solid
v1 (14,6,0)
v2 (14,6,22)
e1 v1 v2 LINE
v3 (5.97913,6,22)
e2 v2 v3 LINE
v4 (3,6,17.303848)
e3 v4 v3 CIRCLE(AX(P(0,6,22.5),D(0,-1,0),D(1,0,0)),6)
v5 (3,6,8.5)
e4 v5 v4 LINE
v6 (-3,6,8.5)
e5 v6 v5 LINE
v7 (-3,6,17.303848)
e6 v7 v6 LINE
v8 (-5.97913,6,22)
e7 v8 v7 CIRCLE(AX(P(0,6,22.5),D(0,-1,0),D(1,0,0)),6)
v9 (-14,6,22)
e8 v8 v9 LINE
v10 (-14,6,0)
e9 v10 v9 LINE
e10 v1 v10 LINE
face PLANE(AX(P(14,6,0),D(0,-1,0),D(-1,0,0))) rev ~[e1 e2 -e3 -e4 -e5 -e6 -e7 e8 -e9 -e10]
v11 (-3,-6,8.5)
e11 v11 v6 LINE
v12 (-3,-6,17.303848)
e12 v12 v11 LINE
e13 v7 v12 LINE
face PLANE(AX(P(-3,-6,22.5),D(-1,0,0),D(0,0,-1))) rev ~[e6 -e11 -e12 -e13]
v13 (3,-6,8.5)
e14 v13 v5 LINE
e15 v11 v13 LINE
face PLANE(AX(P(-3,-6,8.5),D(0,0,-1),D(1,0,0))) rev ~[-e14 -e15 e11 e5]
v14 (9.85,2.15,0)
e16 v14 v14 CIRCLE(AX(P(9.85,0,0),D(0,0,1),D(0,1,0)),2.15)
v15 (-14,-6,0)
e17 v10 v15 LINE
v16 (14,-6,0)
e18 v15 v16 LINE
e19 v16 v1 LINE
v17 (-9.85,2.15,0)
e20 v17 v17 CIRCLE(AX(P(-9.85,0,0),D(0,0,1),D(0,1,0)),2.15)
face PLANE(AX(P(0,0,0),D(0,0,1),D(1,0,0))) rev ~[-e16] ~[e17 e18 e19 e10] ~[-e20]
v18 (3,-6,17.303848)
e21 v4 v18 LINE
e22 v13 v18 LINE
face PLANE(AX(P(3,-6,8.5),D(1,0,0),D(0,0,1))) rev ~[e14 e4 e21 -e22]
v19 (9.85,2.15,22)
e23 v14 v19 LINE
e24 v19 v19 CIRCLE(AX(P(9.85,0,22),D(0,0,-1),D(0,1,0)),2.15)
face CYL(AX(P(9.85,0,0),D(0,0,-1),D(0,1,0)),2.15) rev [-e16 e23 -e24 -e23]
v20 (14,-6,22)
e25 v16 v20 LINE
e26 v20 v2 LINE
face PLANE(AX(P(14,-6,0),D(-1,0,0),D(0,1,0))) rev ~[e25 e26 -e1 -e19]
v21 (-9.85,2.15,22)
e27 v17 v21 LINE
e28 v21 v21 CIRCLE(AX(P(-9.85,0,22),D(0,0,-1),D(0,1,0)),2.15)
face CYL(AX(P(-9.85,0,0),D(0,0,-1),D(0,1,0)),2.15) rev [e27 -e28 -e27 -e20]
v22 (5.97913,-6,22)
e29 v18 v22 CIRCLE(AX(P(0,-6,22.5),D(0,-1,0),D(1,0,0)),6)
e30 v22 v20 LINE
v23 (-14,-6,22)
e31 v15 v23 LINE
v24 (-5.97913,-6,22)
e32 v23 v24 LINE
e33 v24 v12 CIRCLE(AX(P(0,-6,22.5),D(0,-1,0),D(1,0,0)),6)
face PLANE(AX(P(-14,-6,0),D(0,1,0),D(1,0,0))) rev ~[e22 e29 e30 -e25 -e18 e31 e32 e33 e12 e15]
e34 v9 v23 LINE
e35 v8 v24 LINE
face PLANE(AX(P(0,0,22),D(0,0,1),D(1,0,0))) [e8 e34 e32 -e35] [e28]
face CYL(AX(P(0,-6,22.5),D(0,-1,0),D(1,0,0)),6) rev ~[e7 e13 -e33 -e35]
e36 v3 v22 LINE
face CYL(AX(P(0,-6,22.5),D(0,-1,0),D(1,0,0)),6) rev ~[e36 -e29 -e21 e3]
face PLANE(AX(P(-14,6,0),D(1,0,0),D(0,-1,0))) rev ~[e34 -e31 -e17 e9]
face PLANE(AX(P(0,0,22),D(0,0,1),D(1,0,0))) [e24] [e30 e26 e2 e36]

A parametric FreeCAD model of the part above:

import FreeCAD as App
import Part
import Sketcher
from FreeCAD import Vector
Q = App.Units.Quantity

doc = App.newDocument("Part")
body = doc.addObject("PartDesign::Body", "Body")

# Sketch on XY plane
sketch1 = body.newObject("Sketcher::SketchObject", "Sketch")
sketch1.AttachmentSupport = (doc.getObject("XY_Plane"), [""])
sketch1.MapMode = "FlatFace"
sketch1.addGeometry([
    Part.LineSegment(Vector(-14, 6, 0), Vector(-14, -6, 0)),
    Part.LineSegment(Vector(-14, -6, 0), Vector(14, -6, 0)),
    Part.LineSegment(Vector(14, -6, 0), Vector(14, 6, 0)),
    Part.LineSegment(Vector(14, 6, 0), Vector(-14, 6, 0)),
], False)
sketch1.addConstraint([
    Sketcher.Constraint("Coincident", 0, 2, 1, 1),
    Sketcher.Constraint("Coincident", 1, 2, 2, 1),
    Sketcher.Constraint("Coincident", 2, 2, 3, 1),
    Sketcher.Constraint("Coincident", 3, 2, 0, 1),
    Sketcher.Constraint("Vertical", 0),
    Sketcher.Constraint("Horizontal", 1),
    Sketcher.Constraint("Vertical", 2),
    Sketcher.Constraint("Horizontal", 3),
    Sketcher.Constraint("Symmetric", 0, 2, 2, 2, -1, 1),
    Sketcher.Constraint("DistanceX", 0, 2, -1, 1, Q("14 mm")),
    Sketcher.Constraint("DistanceY", 0, 2, 0, 1, Q("12 mm")),
])
pad1 = body.newObject("PartDesign::Pad", "Pad")
pad1.Profile = sketch1
pad1.Length = 22

# Sketch on XZ plane
sketch2 = body.newObject("Sketcher::SketchObject", "Sketch001")
sketch2.AttachmentSupport = (doc.getObject("XZ_Plane"), [""])
sketch2.MapMode = "FlatFace"
sketch2.AttachmentOffset = App.Placement(Vector(0, 0, 6), App.Rotation())
sketch2.addGeometry(Part.Circle(Vector(0, 22, 0), Vector(0, 0, 1), 6), False)
sketch2.addConstraint([
    Sketcher.Constraint("PointOnObject", 0, 3, -2),
    Sketcher.Constraint("Diameter", 0, Q("12 mm")),
    Sketcher.Constraint("DistanceY", -1, 1, 0, 3, Q("22.5 mm")),
])
pocket1 = body.newObject("PartDesign::Pocket", "Pocket")
pocket1.Profile = sketch2
pocket1.Type = "ThroughAll"

# Sketch on XZ plane
sketch3 = body.newObject("Sketcher::SketchObject", "Sketch002")
sketch3.AttachmentSupport = (doc.getObject("XZ_Plane"), [""])
sketch3.MapMode = "FlatFace"
sketch3.AttachmentOffset = App.Placement(Vector(0, 0, 6), App.Rotation())
sketch3.addGeometry([
    Part.LineSegment(Vector(-3, 22, 0), Vector(-3, 8, 0)),
    Part.LineSegment(Vector(-3, 8, 0), Vector(3, 8, 0)),
    Part.LineSegment(Vector(3, 8, 0), Vector(3, 22, 0)),
    Part.LineSegment(Vector(3, 22, 0), Vector(-3, 22, 0)),
], False)
sketch3.addConstraint([
    Sketcher.Constraint("Coincident", 0, 2, 1, 1),
    Sketcher.Constraint("Coincident", 1, 2, 2, 1),
    Sketcher.Constraint("Coincident", 2, 2, 3, 1),
    Sketcher.Constraint("Coincident", 3, 2, 0, 1),
    Sketcher.Constraint("Vertical", 0),
    Sketcher.Constraint("Horizontal", 1),
    Sketcher.Constraint("Vertical", 2),
    Sketcher.Constraint("Horizontal", 3),
    Sketcher.Constraint("DistanceX", 0, 2, -1, 1, Q("3 mm")),
    Sketcher.Constraint("DistanceX", -1, 1, 1, 2, Q("3 mm")),
    Sketcher.Constraint("DistanceY", 0, 2, 0, 1, Q("14 mm")),
    Sketcher.Constraint("DistanceY", -1, 1, 0, 2, Q("8.5 mm")),
])
pocket2 = body.newObject("PartDesign::Pocket", "Pocket001")
pocket2.Profile = sketch3
pocket2.Type = "ThroughAll"

# Sketch on XY plane
sketch4 = body.newObject("Sketcher::SketchObject", "Sketch003")
sketch4.AttachmentSupport = (doc.getObject("XY_Plane"), [""])
sketch4.MapMode = "FlatFace"
sketch4.addGeometry(Part.Circle(Vector(9.8, 0, 0), Vector(0, 0, 1), 2.1), False)
sketch4.addConstraint([
    Sketcher.Constraint("PointOnObject", 0, 3, -1),
    Sketcher.Constraint("Diameter", 0, Q("4.3 mm")),
    Sketcher.Constraint("DistanceX", -1, 1, 0, 3, Q("9.85 mm")),
])
doc.recompute()
hole = body.newObject("PartDesign::Hole", "Hole")
hole.Profile = sketch4
hole.ThreadType = "None"
hole.Diameter = 4.3
hole.DepthType = "ThroughAll"
hole.Reversed = True

# Sketch on XY plane
sketch5 = body.newObject("Sketcher::SketchObject", "Sketch004")
sketch5.AttachmentSupport = (doc.getObject("XY_Plane"), [""])
sketch5.MapMode = "FlatFace"
sketch5.addGeometry(Part.Circle(Vector(-9.8, 0, 0), Vector(0, 0, 1), 2.1), False)
sketch5.addConstraint([
    Sketcher.Constraint("PointOnObject", 0, 3, -1),
    Sketcher.Constraint("Diameter", 0, Q("4.3 mm")),
    Sketcher.Constraint("DistanceX", 0, 3, -1, 1, Q("9.85 mm")),
])
doc.recompute()
hole2 = body.newObject("PartDesign::Hole", "Hole001")
hole2.Profile = sketch5
hole2.ThreadType = "None"
hole2.Diameter = 4.3
hole2.DepthType = "ThroughAll"
hole2.Reversed = True

doc.recompute()
